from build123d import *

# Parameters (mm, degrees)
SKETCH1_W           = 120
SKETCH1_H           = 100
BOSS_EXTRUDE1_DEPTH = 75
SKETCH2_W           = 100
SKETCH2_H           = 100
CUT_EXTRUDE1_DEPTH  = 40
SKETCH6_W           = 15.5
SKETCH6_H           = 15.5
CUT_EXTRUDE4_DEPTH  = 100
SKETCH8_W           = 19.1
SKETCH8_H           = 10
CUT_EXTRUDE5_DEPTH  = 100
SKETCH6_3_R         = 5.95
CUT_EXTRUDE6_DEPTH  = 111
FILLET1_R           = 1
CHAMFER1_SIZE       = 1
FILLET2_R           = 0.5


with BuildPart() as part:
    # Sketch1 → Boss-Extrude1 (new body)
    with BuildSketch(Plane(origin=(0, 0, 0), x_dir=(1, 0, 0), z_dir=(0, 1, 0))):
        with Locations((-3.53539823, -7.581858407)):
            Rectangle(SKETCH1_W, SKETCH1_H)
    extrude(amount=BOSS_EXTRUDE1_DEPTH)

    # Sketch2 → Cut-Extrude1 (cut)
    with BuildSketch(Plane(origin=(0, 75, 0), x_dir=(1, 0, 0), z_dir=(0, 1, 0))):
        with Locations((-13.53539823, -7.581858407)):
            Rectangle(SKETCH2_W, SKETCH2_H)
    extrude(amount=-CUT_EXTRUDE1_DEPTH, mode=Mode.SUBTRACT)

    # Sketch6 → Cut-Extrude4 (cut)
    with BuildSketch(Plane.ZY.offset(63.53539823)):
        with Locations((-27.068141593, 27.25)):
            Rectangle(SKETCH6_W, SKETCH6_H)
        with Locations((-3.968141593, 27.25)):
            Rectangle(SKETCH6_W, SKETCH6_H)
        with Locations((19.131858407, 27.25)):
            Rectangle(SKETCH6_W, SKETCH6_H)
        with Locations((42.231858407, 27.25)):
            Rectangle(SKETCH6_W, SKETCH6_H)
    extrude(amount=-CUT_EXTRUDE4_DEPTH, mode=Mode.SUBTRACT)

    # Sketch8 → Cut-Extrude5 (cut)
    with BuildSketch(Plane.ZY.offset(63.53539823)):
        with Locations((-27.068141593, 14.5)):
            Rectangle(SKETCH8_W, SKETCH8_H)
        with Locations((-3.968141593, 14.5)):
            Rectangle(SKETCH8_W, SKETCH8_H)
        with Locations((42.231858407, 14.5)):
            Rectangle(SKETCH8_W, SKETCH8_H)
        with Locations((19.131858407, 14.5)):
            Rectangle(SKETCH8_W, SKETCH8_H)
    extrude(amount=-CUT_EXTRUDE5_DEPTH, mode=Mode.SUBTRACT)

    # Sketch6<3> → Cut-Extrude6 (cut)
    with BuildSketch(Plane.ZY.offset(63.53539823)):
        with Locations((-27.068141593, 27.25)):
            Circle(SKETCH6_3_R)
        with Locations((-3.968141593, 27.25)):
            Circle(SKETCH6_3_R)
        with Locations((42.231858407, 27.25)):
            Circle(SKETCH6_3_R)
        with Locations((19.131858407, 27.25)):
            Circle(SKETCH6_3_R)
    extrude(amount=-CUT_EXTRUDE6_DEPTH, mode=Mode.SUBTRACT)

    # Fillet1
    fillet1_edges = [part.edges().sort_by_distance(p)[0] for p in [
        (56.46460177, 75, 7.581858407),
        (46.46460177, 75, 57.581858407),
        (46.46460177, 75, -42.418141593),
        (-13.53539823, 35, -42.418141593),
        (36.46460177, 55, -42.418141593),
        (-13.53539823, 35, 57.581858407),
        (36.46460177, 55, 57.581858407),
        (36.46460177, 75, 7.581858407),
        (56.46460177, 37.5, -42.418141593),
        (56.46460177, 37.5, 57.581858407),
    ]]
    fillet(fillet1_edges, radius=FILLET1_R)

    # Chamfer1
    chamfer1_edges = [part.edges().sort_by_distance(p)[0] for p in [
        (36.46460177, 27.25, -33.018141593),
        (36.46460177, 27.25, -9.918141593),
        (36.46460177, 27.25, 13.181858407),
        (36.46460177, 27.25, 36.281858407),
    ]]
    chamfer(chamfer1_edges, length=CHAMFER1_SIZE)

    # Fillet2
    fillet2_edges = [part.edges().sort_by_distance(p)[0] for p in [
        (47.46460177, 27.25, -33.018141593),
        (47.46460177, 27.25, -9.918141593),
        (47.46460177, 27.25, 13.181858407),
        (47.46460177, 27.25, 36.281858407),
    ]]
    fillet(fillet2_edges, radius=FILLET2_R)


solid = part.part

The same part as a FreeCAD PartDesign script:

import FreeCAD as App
import Part
import Sketcher

V = App.Vector


def edges_at(feature, points):
    """Names of the edges that pass closest to the given points."""
    edges = feature.Shape.Edges
    near = lambda p: min(range(len(edges)), key=lambda i: edges[i].distToShape(Part.Vertex(*p))[0])
    return sorted({f"Edge{near(p) + 1}" for p in points})

doc = App.newDocument("Part")
params = doc.addObject("Spreadsheet::Sheet", "Params")
for row, (alias, value) in enumerate([
    ("sketch1_width", "120 mm"),
    ("sketch1_height", "100 mm"),
    ("pad1_length", "75 mm"),
    ("sketch2_width", "100 mm"),
    ("pocket1_length", "40 mm"),
    ("sketch3_width", "15.5 mm"),
    ("pocket2_length", "100 mm"),
    ("sketch4_width", "10 mm"),
    ("sketch4_height", "19.1 mm"),
    ("pocket3_length", "100 mm"),
    ("sketch5_diameter", "11.9 mm"),
    ("pocket4_length", "111 mm"),
    ("fillet_radius", "1 mm"),
    ("chamfer_size", "1 mm"),
    ("fillet2_radius", "0.5 mm"),
], start=1):
    params.set(f"A{row}", alias)
    params.set(f"B{row}", "=" + value)
    params.setAlias(f"B{row}", alias)

body = doc.addObject("PartDesign::Body", "Body")

# Sketch on XZ plane
sketch1 = body.newObject("Sketcher::SketchObject", "Sketch")
sketch1.AttachmentSupport = (doc.getObject("XZ_Plane"), [""])
sketch1.MapMode = "FlatFace"
sketch1.addGeometry([
    Part.LineSegment(V(-63.535398, -42.418142, 0), V(-63.535398, 57.581858, 0)),
    Part.LineSegment(V(-63.535398, 57.581858, 0), V(56.464602, 57.581858, 0)),
    Part.LineSegment(V(56.464602, 57.581858, 0), V(56.464602, -42.418142, 0)),
    Part.LineSegment(V(56.464602, -42.418142, 0), V(-63.535398, -42.418142, 0)),
], False)
sketch1.addConstraint([
    Sketcher.Constraint("Coincident", 0, 2, 1, 1),
    Sketcher.Constraint("Coincident", 1, 2, 2, 1),
    Sketcher.Constraint("Coincident", 2, 2, 3, 1),
    Sketcher.Constraint("Coincident", 3, 2, 0, 1),
    Sketcher.Constraint("Vertical", 0),
    Sketcher.Constraint("Horizontal", 1),
    Sketcher.Constraint("Vertical", 2),
    Sketcher.Constraint("Horizontal", 3),
    Sketcher.Constraint("DistanceX", 1, 1, 1, 2, 120.0),
    Sketcher.Constraint("DistanceY", 0, 1, 0, 2, 100.0),
    Sketcher.Constraint("DistanceX", 0, 2, -1, 1, 63.535398),
    Sketcher.Constraint("DistanceY", -1, 1, 0, 2, 57.581858),
])
sketch1.setExpression("Constraints[8]", "Params.sketch1_width")
sketch1.setExpression("Constraints[9]", "Params.sketch1_height")
pad1 = body.newObject("PartDesign::Pad", "Pad")
pad1.Profile = sketch1
pad1.setExpression("Length", "Params.pad1_length")
pad1.Reversed = True

# Sketch on XZ plane
sketch2 = body.newObject("Sketcher::SketchObject", "Sketch001")
sketch2.AttachmentSupport = (doc.getObject("XZ_Plane"), [""])
sketch2.MapMode = "FlatFace"
sketch2.AttachmentOffset = App.Placement(V(0, 0, -75), App.Rotation())
sketch2.addGeometry([
    Part.LineSegment(V(-63.535398, -42.418142, 0), V(-63.535398, 57.581858, 0)),
    Part.LineSegment(V(-63.535398, 57.581858, 0), V(36.464602, 57.581858, 0)),
    Part.LineSegment(V(36.464602, 57.581858, 0), V(36.464602, -42.418142, 0)),
    Part.LineSegment(V(36.464602, -42.418142, 0), V(-63.535398, -42.418142, 0)),
], False)
sketch2.addConstraint([
    Sketcher.Constraint("Coincident", 0, 2, 1, 1),
    Sketcher.Constraint("Coincident", 1, 2, 2, 1),
    Sketcher.Constraint("Coincident", 2, 2, 3, 1),
    Sketcher.Constraint("Coincident", 3, 2, 0, 1),
    Sketcher.Constraint("Vertical", 0),
    Sketcher.Constraint("Horizontal", 1),
    Sketcher.Constraint("Vertical", 2),
    Sketcher.Constraint("Horizontal", 3),
    Sketcher.Constraint("Equal", 3, 0),
    Sketcher.Constraint("DistanceX", 1, 1, 1, 2, 100.0),
    Sketcher.Constraint("DistanceX", 0, 2, -1, 1, 63.535398),
    Sketcher.Constraint("DistanceY", -1, 1, 0, 2, 57.581858),
])
sketch2.setExpression("Constraints[9]", "Params.sketch2_width")
pocket1 = body.newObject("PartDesign::Pocket", "Pocket")
pocket1.Profile = sketch2
pocket1.setExpression("Length", "Params.pocket1_length")
pocket1.Reversed = True

# Sketch on YZ plane
sketch3 = body.newObject("Sketcher::SketchObject", "Sketch002")
sketch3.AttachmentSupport = (doc.getObject("YZ_Plane"), [""])
sketch3.MapMode = "FlatFace"
sketch3.AttachmentOffset = App.Placement(V(0, 0, -63.535398), App.Rotation())
sketch3.addGeometry([
    Part.LineSegment(V(35, -34.818142, 0), V(19.5, -34.818142, 0)),  # 0
    Part.LineSegment(V(19.5, -34.818142, 0), V(19.5, -19.318142, 0)),  # 1
    Part.LineSegment(V(19.5, -19.318142, 0), V(35, -19.318142, 0)),  # 2
    Part.LineSegment(V(35, -19.318142, 0), V(35, -34.818142, 0)),  # 3
    Part.LineSegment(V(35, -11.718142, 0), V(19.5, -11.718142, 0)),  # 4
    Part.LineSegment(V(19.5, -11.718142, 0), V(19.5, 3.781858, 0)),  # 5
    Part.LineSegment(V(19.5, 3.781858, 0), V(35, 3.781858, 0)),  # 6
    Part.LineSegment(V(35, 3.781858, 0), V(35, -11.718142, 0)),  # 7
    Part.LineSegment(V(35, 11.381858, 0), V(19.5, 11.381858, 0)),  # 8
    Part.LineSegment(V(19.5, 11.381858, 0), V(19.5, 26.881858, 0)),  # 9
    Part.LineSegment(V(19.5, 26.881858, 0), V(35, 26.881858, 0)),  # 10
    Part.LineSegment(V(35, 26.881858, 0), V(35, 11.381858, 0)),  # 11
    Part.LineSegment(V(35, 34.481858, 0), V(19.5, 34.481858, 0)),  # 12
    Part.LineSegment(V(19.5, 34.481858, 0), V(19.5, 49.981858, 0)),  # 13
    Part.LineSegment(V(19.5, 49.981858, 0), V(35, 49.981858, 0)),  # 14
    Part.LineSegment(V(35, 49.981858, 0), V(35, 34.481858, 0)),  # 15
], False)
sketch3.addConstraint([
    Sketcher.Constraint("Coincident", 0, 2, 1, 1),
    Sketcher.Constraint("Coincident", 1, 2, 2, 1),
    Sketcher.Constraint("Coincident", 2, 2, 3, 1),
    Sketcher.Constraint("Coincident", 3, 2, 0, 1),
    Sketcher.Constraint("Coincident", 4, 2, 5, 1),
    Sketcher.Constraint("Coincident", 5, 2, 6, 1),
    Sketcher.Constraint("Coincident", 6, 2, 7, 1),
    Sketcher.Constraint("Coincident", 7, 2, 4, 1),
    Sketcher.Constraint("Coincident", 8, 2, 9, 1),
    Sketcher.Constraint("Coincident", 9, 2, 10, 1),
    Sketcher.Constraint("Coincident", 10, 2, 11, 1),
    Sketcher.Constraint("Coincident", 11, 2, 8, 1),
    Sketcher.Constraint("Coincident", 12, 2, 13, 1),
    Sketcher.Constraint("Coincident", 13, 2, 14, 1),
    Sketcher.Constraint("Coincident", 14, 2, 15, 1),
    Sketcher.Constraint("Coincident", 15, 2, 12, 1),
    Sketcher.Constraint("Horizontal", 0),
    Sketcher.Constraint("Vertical", 1),
    Sketcher.Constraint("Horizontal", 2),
    Sketcher.Constraint("Vertical", 3),
    Sketcher.Constraint("Horizontal", 4),
    Sketcher.Constraint("Vertical", 5),
    Sketcher.Constraint("Horizontal", 6),
    Sketcher.Constraint("Vertical", 7),
    Sketcher.Constraint("Horizontal", 8),
    Sketcher.Constraint("Vertical", 9),
    Sketcher.Constraint("Horizontal", 10),
    Sketcher.Constraint("Vertical", 11),
    Sketcher.Constraint("Horizontal", 12),
    Sketcher.Constraint("Vertical", 13),
    Sketcher.Constraint("Horizontal", 14),
    Sketcher.Constraint("Vertical", 15),
    Sketcher.Constraint("Vertical", 1, 2, 4, 2),
    Sketcher.Constraint("Vertical", 3, 2, 6, 2),
    Sketcher.Constraint("Vertical", 5, 2, 8, 2),
    Sketcher.Constraint("Vertical", 7, 2, 10, 2),
    Sketcher.Constraint("Vertical", 9, 2, 12, 2),
    Sketcher.Constraint("Vertical", 11, 2, 14, 2),
    Sketcher.Constraint("Equal", 14, 1),
    Sketcher.Constraint("Equal", 3, 5),
    Sketcher.Constraint("Equal", 7, 9),
    Sketcher.Constraint("Equal", 11, 13),
    Sketcher.Constraint("DistanceX", 0, 2, 0, 1, 15.5),
    Sketcher.Constraint("DistanceX", -1, 1, 2, 2, 35.0),
    Sketcher.Constraint("DistanceY", 1, 2, 4, 2, 7.6),
    Sketcher.Constraint("DistanceY", 5, 2, 8, 2, 7.6),
    Sketcher.Constraint("DistanceY", 9, 2, 12, 2, 7.6),
    Sketcher.Constraint("DistanceY", 0, 2, -1, 1, 34.818142),
])
sketch3.setExpression("Constraints[42]", "Params.sketch3_width")
pocket2 = body.newObject("PartDesign::Pocket", "Pocket001")
pocket2.Profile = sketch3
pocket2.setExpression("Length", "Params.pocket2_length")
pocket2.Reversed = True

# Sketch on YZ plane
sketch4 = body.newObject("Sketcher::SketchObject", "Sketch003")
sketch4.AttachmentSupport = (doc.getObject("YZ_Plane"), [""])
sketch4.MapMode = "FlatFace"
sketch4.AttachmentOffset = App.Placement(V(0, 0, -63.535398), App.Rotation())
sketch4.addGeometry([
    Part.LineSegment(V(19.5, -36.618142, 0), V(9.5, -36.618142, 0)),  # 0
    Part.LineSegment(V(9.5, -36.618142, 0), V(9.5, -17.518142, 0)),  # 1
    Part.LineSegment(V(9.5, -17.518142, 0), V(19.5, -17.518142, 0)),  # 2
    Part.LineSegment(V(19.5, -17.518142, 0), V(19.5, -36.618142, 0)),  # 3
    Part.LineSegment(V(19.5, -13.518142, 0), V(9.5, -13.518142, 0)),  # 4
    Part.LineSegment(V(9.5, -13.518142, 0), V(9.5, 5.581858, 0)),  # 5
    Part.LineSegment(V(9.5, 5.581858, 0), V(19.5, 5.581858, 0)),  # 6
    Part.LineSegment(V(19.5, 5.581858, 0), V(19.5, -13.518142, 0)),  # 7
    Part.LineSegment(V(19.5, 32.681858, 0), V(9.5, 32.681858, 0)),  # 8
    Part.LineSegment(V(9.5, 32.681858, 0), V(9.5, 51.781858, 0)),  # 9
    Part.LineSegment(V(9.5, 51.781858, 0), V(19.5, 51.781858, 0)),  # 10
    Part.LineSegment(V(19.5, 51.781858, 0), V(19.5, 32.681858, 0)),  # 11
    Part.LineSegment(V(19.5, 9.581858, 0), V(9.5, 9.581858, 0)),  # 12
    Part.LineSegment(V(9.5, 9.581858, 0), V(9.5, 28.681858, 0)),  # 13
    Part.LineSegment(V(9.5, 28.681858, 0), V(19.5, 28.681858, 0)),  # 14
    Part.LineSegment(V(19.5, 28.681858, 0), V(19.5, 9.581858, 0)),  # 15
], False)
sketch4.addConstraint([
    Sketcher.Constraint("Coincident", 0, 2, 1, 1),
    Sketcher.Constraint("Coincident", 1, 2, 2, 1),
    Sketcher.Constraint("Coincident", 2, 2, 3, 1),
    Sketcher.Constraint("Coincident", 3, 2, 0, 1),
    Sketcher.Constraint("Coincident", 4, 2, 5, 1),
    Sketcher.Constraint("Coincident", 5, 2, 6, 1),
    Sketcher.Constraint("Coincident", 6, 2, 7, 1),
    Sketcher.Constraint("Coincident", 7, 2, 4, 1),
    Sketcher.Constraint("Coincident", 8, 2, 9, 1),
    Sketcher.Constraint("Coincident", 9, 2, 10, 1),
    Sketcher.Constraint("Coincident", 10, 2, 11, 1),
    Sketcher.Constraint("Coincident", 11, 2, 8, 1),
    Sketcher.Constraint("Coincident", 12, 2, 13, 1),
    Sketcher.Constraint("Coincident", 13, 2, 14, 1),
    Sketcher.Constraint("Coincident", 14, 2, 15, 1),
    Sketcher.Constraint("Coincident", 15, 2, 12, 1),
    Sketcher.Constraint("Horizontal", 0),
    Sketcher.Constraint("Vertical", 1),
    Sketcher.Constraint("Horizontal", 2),
    Sketcher.Constraint("Vertical", 3),
    Sketcher.Constraint("Horizontal", 4),
    Sketcher.Constraint("Vertical", 5),
    Sketcher.Constraint("Horizontal", 6),
    Sketcher.Constraint("Vertical", 7),
    Sketcher.Constraint("Horizontal", 8),
    Sketcher.Constraint("Vertical", 9),
    Sketcher.Constraint("Horizontal", 10),
    Sketcher.Constraint("Vertical", 11),
    Sketcher.Constraint("Horizontal", 12),
    Sketcher.Constraint("Vertical", 13),
    Sketcher.Constraint("Horizontal", 14),
    Sketcher.Constraint("Vertical", 15),
    Sketcher.Constraint("Vertical", 1, 2, 4, 2),
    Sketcher.Constraint("Vertical", 3, 2, 6, 2),
    Sketcher.Constraint("Vertical", 5, 2, 8, 2),
    Sketcher.Constraint("Vertical", 7, 2, 10, 2),
    Sketcher.Constraint("Vertical", 9, 2, 12, 2),
    Sketcher.Constraint("Vertical", 11, 2, 14, 2),
    Sketcher.Constraint("Equal", 3, 5),
    Sketcher.Constraint("Equal", 7, 9),
    Sketcher.Constraint("Equal", 11, 13),
    Sketcher.Constraint("DistanceX", 0, 2, 0, 1, 10.0),
    Sketcher.Constraint("DistanceY", 1, 1, 1, 2, 19.1),
    Sketcher.Constraint("DistanceY", 1, 2, 4, 2, 4.0),
    Sketcher.Constraint("DistanceY", 5, 2, 12, 2, 4.0),
    Sketcher.Constraint("DistanceY", 13, 2, 8, 2, 4.0),
    Sketcher.Constraint("DistanceX", -1, 1, 0, 2, 9.5),
    Sketcher.Constraint("DistanceY", 0, 2, -1, 1, 36.618142),
])
sketch4.setExpression("Constraints[41]", "Params.sketch4_width")
sketch4.setExpression("Constraints[42]", "Params.sketch4_height")
pocket3 = body.newObject("PartDesign::Pocket", "Pocket002")
pocket3.Profile = sketch4
pocket3.setExpression("Length", "Params.pocket3_length")
pocket3.Reversed = True

# Sketch on YZ plane
sketch5 = body.newObject("Sketcher::SketchObject", "Sketch004")
sketch5.AttachmentSupport = (doc.getObject("YZ_Plane"), [""])
sketch5.MapMode = "FlatFace"
sketch5.AttachmentOffset = App.Placement(V(0, 0, -63.535398), App.Rotation())
sketch5.addGeometry([
    Part.Circle(V(27.25, -27.068142, 0), V(0, 0, 1), 5.95),
    Part.Circle(V(27.25, -3.968142, 0), V(0, 0, 1), 5.95),
    Part.Circle(V(27.25, 42.231858, 0), V(0, 0, 1), 5.95),
    Part.Circle(V(27.25, 19.131858, 0), V(0, 0, 1), 5.95),
], False)
sketch5.addConstraint([
    Sketcher.Constraint("Equal", 0, 1),
    Sketcher.Constraint("Equal", 1, 2),
    Sketcher.Constraint("Equal", 2, 3),
    Sketcher.Constraint("Vertical", 0, 3, 1, 3),
    Sketcher.Constraint("Vertical", 1, 3, 2, 3),
    Sketcher.Constraint("Vertical", 2, 3, 3, 3),
    Sketcher.Constraint("Diameter", 0, 11.9),
    Sketcher.Constraint("DistanceY", 0, 3, 1, 3, 23.1),
    Sketcher.Constraint("DistanceY", 1, 3, 2, 3, 46.2),
    Sketcher.Constraint("DistanceY", 1, 3, 3, 3, 23.1),
    Sketcher.Constraint("DistanceX", -1, 1, 0, 3, 27.25),
    Sketcher.Constraint("DistanceY", 0, 3, -1, 1, 27.068142),
])
sketch5.setExpression("Constraints[6]", "Params.sketch5_diameter")
pocket4 = body.newObject("PartDesign::Pocket", "Pocket003")
pocket4.Profile = sketch5
pocket4.setExpression("Length", "Params.pocket4_length")
pocket4.Reversed = True
doc.recompute()

fillet = body.newObject("PartDesign::Fillet", "Fillet")
fillet.Base = (pocket4, edges_at(pocket4, [
    (56.465, 75, 7.582),
    (46.465, 75, 57.582),
    (46.465, 75, -42.418),
    (-13.535, 35, -42.418),
    (36.465, 55, -42.418),
    (-13.535, 35, 57.582),
    (36.465, 55, 57.582),
    (36.465, 75, 7.582),
    (56.465, 37.5, -42.418),
    (56.465, 37.5, 57.582),
]))
fillet.setExpression("Radius", "Params.fillet_radius")
doc.recompute()

chamfer = body.newObject("PartDesign::Chamfer", "Chamfer")
chamfer.Base = (fillet, edges_at(fillet, [
    (36.465, 27.25, -33.018),
    (36.465, 27.25, -9.918),
    (36.465, 27.25, 13.182),
    (36.465, 27.25, 36.282),
]))
chamfer.setExpression("Size", "Params.chamfer_size")
doc.recompute()

fillet2 = body.newObject("PartDesign::Fillet", "Fillet001")
fillet2.Base = (chamfer, edges_at(chamfer, [
    (47.465, 27.25, -33.018),
    (47.465, 27.25, -9.918),
    (47.465, 27.25, 13.182),
    (47.465, 27.25, 36.282),
]))
fillet2.setExpression("Radius", "Params.fillet2_radius")

doc.recompute()
